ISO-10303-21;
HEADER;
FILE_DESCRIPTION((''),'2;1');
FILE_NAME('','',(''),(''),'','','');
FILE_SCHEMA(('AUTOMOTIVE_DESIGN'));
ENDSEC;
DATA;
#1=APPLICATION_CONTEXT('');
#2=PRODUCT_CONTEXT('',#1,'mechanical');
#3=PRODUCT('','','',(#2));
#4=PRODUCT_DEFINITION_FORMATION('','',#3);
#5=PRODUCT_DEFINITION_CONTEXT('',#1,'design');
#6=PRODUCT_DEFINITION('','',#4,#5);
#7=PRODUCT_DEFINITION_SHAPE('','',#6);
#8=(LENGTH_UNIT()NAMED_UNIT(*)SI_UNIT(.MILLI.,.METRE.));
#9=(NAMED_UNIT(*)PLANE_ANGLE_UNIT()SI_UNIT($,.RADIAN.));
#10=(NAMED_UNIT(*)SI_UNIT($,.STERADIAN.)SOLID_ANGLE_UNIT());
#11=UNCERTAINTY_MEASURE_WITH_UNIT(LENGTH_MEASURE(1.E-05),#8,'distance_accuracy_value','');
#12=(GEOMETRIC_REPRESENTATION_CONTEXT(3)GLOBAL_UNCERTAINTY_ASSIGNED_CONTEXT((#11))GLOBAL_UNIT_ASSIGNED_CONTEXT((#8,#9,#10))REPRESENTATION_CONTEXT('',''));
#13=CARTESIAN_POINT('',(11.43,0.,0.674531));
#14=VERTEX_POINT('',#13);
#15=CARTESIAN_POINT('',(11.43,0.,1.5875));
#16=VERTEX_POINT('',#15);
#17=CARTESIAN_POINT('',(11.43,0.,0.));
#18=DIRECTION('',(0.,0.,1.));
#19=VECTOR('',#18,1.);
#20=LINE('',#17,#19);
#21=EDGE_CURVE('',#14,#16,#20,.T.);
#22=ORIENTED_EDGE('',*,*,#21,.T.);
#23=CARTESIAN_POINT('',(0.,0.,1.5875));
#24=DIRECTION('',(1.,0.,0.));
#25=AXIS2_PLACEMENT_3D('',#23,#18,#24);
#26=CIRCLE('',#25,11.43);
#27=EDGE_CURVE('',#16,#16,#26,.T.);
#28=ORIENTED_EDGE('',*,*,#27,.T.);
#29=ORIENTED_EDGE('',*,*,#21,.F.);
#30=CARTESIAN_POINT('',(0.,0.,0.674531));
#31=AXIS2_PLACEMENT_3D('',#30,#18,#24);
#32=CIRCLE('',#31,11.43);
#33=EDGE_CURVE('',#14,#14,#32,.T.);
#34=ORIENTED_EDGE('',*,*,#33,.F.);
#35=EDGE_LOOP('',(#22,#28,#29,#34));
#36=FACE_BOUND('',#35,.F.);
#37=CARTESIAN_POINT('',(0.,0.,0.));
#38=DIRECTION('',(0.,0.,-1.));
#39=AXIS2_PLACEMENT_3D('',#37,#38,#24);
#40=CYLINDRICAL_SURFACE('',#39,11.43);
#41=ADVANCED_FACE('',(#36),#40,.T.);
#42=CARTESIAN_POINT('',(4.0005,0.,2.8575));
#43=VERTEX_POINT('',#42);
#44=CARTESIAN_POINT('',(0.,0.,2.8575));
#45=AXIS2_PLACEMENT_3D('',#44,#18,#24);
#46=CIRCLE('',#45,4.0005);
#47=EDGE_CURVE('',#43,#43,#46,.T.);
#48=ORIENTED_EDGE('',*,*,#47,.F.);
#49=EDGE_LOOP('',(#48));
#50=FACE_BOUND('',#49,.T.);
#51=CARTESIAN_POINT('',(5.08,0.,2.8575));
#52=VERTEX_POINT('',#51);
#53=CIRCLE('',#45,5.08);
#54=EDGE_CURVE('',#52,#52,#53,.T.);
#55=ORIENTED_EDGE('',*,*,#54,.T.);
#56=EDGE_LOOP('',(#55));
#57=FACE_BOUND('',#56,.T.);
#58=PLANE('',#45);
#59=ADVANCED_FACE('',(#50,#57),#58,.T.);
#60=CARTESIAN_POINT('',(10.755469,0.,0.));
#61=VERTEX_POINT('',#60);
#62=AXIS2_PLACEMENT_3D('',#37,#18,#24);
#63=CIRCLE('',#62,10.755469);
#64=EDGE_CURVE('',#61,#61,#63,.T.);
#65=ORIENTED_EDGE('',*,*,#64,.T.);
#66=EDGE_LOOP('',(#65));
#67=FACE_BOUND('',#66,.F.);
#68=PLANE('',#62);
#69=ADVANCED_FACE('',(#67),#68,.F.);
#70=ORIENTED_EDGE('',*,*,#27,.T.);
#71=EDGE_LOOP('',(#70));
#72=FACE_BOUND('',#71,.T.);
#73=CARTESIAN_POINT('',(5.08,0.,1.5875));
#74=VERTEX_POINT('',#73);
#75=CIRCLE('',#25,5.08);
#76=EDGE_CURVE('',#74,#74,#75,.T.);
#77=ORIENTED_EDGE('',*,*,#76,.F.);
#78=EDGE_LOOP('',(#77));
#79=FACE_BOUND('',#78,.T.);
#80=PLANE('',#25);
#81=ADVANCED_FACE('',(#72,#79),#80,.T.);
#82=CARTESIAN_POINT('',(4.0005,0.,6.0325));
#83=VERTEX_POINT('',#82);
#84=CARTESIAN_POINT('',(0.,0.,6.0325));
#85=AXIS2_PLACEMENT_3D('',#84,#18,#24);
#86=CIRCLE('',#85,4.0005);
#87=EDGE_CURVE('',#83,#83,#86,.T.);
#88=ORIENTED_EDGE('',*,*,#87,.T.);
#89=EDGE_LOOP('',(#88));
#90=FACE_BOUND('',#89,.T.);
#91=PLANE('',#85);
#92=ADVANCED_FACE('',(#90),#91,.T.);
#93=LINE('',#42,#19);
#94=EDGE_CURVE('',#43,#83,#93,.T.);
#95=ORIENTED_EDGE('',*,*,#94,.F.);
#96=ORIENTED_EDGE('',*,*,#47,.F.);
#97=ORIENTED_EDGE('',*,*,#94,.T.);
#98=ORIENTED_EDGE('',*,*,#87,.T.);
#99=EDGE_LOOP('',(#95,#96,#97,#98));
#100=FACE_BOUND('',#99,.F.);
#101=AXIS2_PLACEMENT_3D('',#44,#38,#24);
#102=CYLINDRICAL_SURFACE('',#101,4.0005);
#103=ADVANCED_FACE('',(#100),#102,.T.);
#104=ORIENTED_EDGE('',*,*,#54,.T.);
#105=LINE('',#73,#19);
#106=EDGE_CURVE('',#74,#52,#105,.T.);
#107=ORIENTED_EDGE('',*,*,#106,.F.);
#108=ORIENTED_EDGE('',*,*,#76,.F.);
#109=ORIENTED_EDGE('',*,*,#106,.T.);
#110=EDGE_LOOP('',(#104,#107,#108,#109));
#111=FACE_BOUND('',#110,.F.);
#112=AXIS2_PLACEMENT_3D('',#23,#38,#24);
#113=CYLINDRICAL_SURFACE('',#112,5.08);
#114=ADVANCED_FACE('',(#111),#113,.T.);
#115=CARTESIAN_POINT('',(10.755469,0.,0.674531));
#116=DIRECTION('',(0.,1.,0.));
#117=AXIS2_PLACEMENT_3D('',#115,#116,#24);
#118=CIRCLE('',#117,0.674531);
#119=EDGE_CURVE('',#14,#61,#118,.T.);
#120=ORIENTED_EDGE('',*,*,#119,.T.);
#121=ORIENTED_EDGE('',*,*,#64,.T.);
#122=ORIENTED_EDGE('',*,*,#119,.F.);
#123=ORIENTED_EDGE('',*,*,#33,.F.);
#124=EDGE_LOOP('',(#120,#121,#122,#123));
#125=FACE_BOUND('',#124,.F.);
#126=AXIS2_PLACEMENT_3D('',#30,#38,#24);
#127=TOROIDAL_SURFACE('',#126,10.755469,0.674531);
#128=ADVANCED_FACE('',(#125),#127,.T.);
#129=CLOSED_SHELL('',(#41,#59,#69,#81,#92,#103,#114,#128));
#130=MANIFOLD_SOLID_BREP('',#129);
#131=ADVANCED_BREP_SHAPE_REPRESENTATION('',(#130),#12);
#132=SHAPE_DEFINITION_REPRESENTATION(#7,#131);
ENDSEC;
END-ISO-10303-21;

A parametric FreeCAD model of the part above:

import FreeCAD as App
import Part
import Sketcher

V = App.Vector
Q = App.Units.Quantity


def edges_at(feature, points):
    """Names of the edges that pass closest to the given points."""
    edges = feature.Shape.Edges
    near = lambda p: min(range(len(edges)), key=lambda i: edges[i].distToShape(Part.Vertex(*p))[0])
    return sorted({f"Edge{near(p) + 1}" for p in points})

doc = App.newDocument("Part")
body = doc.addObject("PartDesign::Body", "Body")

# Sketch on XY plane
sketch1 = doc.addObject("Sketcher::SketchObject", "Sketch")
body.addObject(sketch1)
sketch1.AttachmentSupport = (doc.XY_Plane, [""])
sketch1.MapMode = "FlatFace"
sketch1.addGeometry(Part.Circle(V(0, 0, 0), V(0, 0, 1), 11), False)
sketch1.addConstraint([
    Sketcher.Constraint("Coincident", 0, 3, -1, 1),
    Sketcher.Constraint("Diameter", 0, Q("0.9 in")),
])
pad1 = doc.addObject("PartDesign::Pad", "Pad")
body.addObject(pad1)
pad1.Profile = sketch1
pad1.Length = Q("0.0625 in")

# Sketch on XY plane
sketch2 = doc.addObject("Sketcher::SketchObject", "Sketch001")
body.addObject(sketch2)
sketch2.AttachmentSupport = (doc.XY_Plane, [""])
sketch2.MapMode = "FlatFace"
sketch2.AttachmentOffset = App.Placement(V(0, 0, 0.0625 * 25.4), App.Rotation())
sketch2.addGeometry(Part.Circle(V(0, 0, 0), V(0, 0, 1), 5), False)
sketch2.addConstraint([
    Sketcher.Constraint("Coincident", 0, 3, -1, 1),
    Sketcher.Constraint("Diameter", 0, Q("0.4 in")),
])
pad2 = doc.addObject("PartDesign::Pad", "Pad001")
body.addObject(pad2)
pad2.Profile = sketch2
pad2.Length = Q("0.05 in")

# Sketch on XY plane
sketch3 = doc.addObject("Sketcher::SketchObject", "Sketch002")
body.addObject(sketch3)
sketch3.AttachmentSupport = (doc.XY_Plane, [""])
sketch3.MapMode = "FlatFace"
sketch3.AttachmentOffset = App.Placement(V(0, 0, 0.1125 * 25.4), App.Rotation())
sketch3.addGeometry(Part.Circle(V(0, 0, 0), V(0, 0, 1), 4), False)
sketch3.addConstraint([
    Sketcher.Constraint("Coincident", 0, 3, -1, 1),
    Sketcher.Constraint("Diameter", 0, Q("0.315 in")),
])
pad3 = doc.addObject("PartDesign::Pad", "Pad002")
body.addObject(pad3)
pad3.Profile = sketch3
pad3.Length = Q("0.125 in")
doc.recompute()

fillet = doc.addObject("PartDesign::Fillet", "Fillet")
body.addObject(fillet)
fillet.Base = (pad3, edges_at(pad3, [(-11.43, 0, 0)]))
fillet.Radius = 0.674531

doc.recompute()
